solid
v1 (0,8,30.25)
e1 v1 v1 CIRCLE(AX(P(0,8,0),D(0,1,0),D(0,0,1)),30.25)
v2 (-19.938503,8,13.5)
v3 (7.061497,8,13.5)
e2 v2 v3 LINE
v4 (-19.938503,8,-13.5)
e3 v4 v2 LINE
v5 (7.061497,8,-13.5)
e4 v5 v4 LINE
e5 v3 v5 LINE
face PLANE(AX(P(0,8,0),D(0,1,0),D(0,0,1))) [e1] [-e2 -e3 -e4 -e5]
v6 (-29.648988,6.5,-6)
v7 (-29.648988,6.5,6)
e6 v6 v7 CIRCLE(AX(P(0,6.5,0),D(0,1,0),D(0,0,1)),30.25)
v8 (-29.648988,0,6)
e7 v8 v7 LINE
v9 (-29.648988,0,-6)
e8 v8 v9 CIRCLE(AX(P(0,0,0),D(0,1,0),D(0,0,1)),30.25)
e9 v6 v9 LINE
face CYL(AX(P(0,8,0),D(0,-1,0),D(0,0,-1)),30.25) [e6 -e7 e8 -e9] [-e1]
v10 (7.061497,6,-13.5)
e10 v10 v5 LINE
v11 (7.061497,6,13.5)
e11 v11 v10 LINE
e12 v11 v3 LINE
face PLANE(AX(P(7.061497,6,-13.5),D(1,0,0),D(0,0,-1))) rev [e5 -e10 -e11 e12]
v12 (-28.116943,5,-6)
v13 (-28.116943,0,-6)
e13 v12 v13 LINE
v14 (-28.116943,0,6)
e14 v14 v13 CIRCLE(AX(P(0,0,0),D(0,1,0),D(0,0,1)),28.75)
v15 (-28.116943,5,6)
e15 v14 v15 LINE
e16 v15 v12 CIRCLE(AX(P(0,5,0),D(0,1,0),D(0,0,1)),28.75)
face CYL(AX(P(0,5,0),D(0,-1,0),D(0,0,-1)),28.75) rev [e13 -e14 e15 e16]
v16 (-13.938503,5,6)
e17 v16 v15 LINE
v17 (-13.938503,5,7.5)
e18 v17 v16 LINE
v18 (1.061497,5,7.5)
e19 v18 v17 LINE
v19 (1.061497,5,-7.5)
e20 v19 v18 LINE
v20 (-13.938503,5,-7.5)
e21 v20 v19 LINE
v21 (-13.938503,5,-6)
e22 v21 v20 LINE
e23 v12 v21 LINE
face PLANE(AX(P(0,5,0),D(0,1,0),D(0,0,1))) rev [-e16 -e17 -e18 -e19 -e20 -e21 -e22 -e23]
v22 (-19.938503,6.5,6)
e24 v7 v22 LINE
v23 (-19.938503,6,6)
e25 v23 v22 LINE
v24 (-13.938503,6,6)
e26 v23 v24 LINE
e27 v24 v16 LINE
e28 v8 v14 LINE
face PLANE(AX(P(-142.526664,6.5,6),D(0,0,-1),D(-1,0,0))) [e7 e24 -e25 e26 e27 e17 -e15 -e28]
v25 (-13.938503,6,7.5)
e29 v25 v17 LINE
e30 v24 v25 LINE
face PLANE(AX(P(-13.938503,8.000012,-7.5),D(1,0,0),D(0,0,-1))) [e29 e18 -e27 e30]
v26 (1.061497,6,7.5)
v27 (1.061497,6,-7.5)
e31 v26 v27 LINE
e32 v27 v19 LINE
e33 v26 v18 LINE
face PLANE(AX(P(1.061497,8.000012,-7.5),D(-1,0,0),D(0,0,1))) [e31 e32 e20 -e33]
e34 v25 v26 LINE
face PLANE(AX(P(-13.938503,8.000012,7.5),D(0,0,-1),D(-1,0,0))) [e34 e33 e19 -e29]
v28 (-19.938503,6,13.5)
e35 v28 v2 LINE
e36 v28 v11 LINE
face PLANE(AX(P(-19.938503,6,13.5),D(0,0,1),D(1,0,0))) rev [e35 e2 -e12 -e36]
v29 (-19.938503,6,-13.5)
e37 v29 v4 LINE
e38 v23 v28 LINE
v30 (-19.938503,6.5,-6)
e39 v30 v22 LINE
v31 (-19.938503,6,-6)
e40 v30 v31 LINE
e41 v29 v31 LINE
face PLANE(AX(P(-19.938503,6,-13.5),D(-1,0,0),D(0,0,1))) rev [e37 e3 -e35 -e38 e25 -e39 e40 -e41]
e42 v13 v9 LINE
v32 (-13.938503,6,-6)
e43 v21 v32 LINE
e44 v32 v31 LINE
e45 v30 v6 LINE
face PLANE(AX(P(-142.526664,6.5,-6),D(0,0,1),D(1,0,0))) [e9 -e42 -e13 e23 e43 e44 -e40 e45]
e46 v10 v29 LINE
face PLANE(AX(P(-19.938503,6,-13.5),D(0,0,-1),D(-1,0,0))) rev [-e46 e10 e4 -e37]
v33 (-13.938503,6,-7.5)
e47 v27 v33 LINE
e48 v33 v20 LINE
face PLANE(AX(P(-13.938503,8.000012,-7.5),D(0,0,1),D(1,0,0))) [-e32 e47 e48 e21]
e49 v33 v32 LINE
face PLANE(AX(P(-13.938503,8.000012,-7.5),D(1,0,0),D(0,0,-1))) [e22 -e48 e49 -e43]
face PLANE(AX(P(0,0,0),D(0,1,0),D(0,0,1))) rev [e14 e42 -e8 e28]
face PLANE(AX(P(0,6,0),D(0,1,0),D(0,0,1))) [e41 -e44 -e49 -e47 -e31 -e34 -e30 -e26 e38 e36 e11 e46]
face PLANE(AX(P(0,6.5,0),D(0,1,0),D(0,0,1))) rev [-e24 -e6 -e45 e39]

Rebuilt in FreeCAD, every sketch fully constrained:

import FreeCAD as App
import Part
import Sketcher

V = App.Vector
Q = App.Units.Quantity


def add_polygon(sketch, points):
    """Adds a closed chain of lines whose ends are joined by coincident constraints."""
    first, n = sketch.GeometryCount, len(points)
    for a, b in zip(points, points[1:] + points[:1]):
        sketch.addGeometry(Part.LineSegment(App.Vector(*a, 0), App.Vector(*b, 0)), False)
    for i in range(n):
        sketch.addConstraint(Sketcher.Constraint("Coincident", first + i, 2, first + (i + 1) % n, 1))

doc = App.newDocument("Part")
body = doc.addObject("PartDesign::Body", "Body")

# Sketch on XZ plane
sketch1 = body.newObject("Sketcher::SketchObject", "Sketch")
sketch1.AttachmentSupport = (doc.getObject("XZ_Plane"), [""])
sketch1.MapMode = "FlatFace"
sketch1.addGeometry(Part.Circle(V(0, 0, 0), V(0, 0, 1), 30), False)
sketch1.addConstraint([
    Sketcher.Constraint("Coincident", 0, 3, -1, 1),
    Sketcher.Constraint("Diameter", 0, Q("60.5 mm")),
])
pad1 = body.newObject("PartDesign::Pad", "Pad")
pad1.Profile = sketch1
pad1.Length = 8
pad1.Reversed = True

# Sketch on XZ plane
sketch2 = body.newObject("Sketcher::SketchObject", "Sketch001")
sketch2.AttachmentSupport = (doc.getObject("XZ_Plane"), [""])
sketch2.MapMode = "FlatFace"
sketch2.addGeometry(Part.Circle(V(0, 0, 0), V(0, 0, 1), 29), False)
sketch2.addConstraint([
    Sketcher.Constraint("Coincident", 0, 3, -1, 1),
    Sketcher.Constraint("Diameter", 0, Q("57.5 mm")),
])
pocket1 = body.newObject("PartDesign::Pocket", "Pocket")
pocket1.Profile = sketch2
pocket1.Length = 5

# Sketch on XZ plane
sketch3 = body.newObject("Sketcher::SketchObject", "Sketch002")
sketch3.AttachmentSupport = (doc.getObject("XZ_Plane"), [""])
sketch3.MapMode = "FlatFace"
add_polygon(sketch3, [(-143, -6), (-143, 6), (0, 6), (0, -6)])  # lines 0-3
sketch3.addConstraint([
    Sketcher.Constraint("Vertical", 0),
    Sketcher.Constraint("Horizontal", 1),
    Sketcher.Constraint("Vertical", 2),
    Sketcher.Constraint("Horizontal", 3),
    Sketcher.Constraint("Symmetric", 1, 2, 2, 2, -1, 1),
    Sketcher.Constraint("DistanceY", 0, 1, 0, 2, Q("12 mm")),
    Sketcher.Constraint("DistanceX", 1, 1, 1, 2, Q("142.526664 mm")),
])
pocket2 = body.newObject("PartDesign::Pocket", "Pocket001")
pocket2.Profile = sketch3
pocket2.Length = 6.5

# Sketch on XZ plane
sketch4 = body.newObject("Sketcher::SketchObject", "Sketch003")
sketch4.AttachmentSupport = (doc.getObject("XZ_Plane"), [""])
sketch4.MapMode = "FlatFace"
add_polygon(sketch4, [(-14, -8), (-14, 8), (1, 8), (1, -8)])  # lines 0-3
sketch4.addConstraint([
    Sketcher.Constraint("Vertical", 0),
    Sketcher.Constraint("Horizontal", 1),
    Sketcher.Constraint("Vertical", 2),
    Sketcher.Constraint("Horizontal", 3),
    Sketcher.Constraint("Equal", 3, 0),
    Sketcher.Constraint("DistanceX", 1, 1, 1, 2, Q("15 mm")),
    Sketcher.Constraint("DistanceY", -1, 1, 0, 2, Q("7.5 mm")),
    Sketcher.Constraint("DistanceX", 0, 2, -1, 1, Q("13.938503 mm")),
])
pocket3 = body.newObject("PartDesign::Pocket", "Pocket002")
pocket3.Profile = sketch4
pocket3.Type = "ThroughAll"
pocket3.Midplane = True

# Sketch on XZ plane
sketch5 = body.newObject("Sketcher::SketchObject", "Sketch004")
sketch5.AttachmentSupport = (doc.getObject("XZ_Plane"), [""])
sketch5.MapMode = "FlatFace"
sketch5.AttachmentOffset = App.Placement(V(0, 0, -8), App.Rotation())
add_polygon(sketch5, [(-20, -14), (-20, 14), (7, 14), (7, -14)])  # lines 0-3
sketch5.addConstraint([
    Sketcher.Constraint("Vertical", 0),
    Sketcher.Constraint("Horizontal", 1),
    Sketcher.Constraint("Vertical", 2),
    Sketcher.Constraint("Horizontal", 3),
    Sketcher.Constraint("Equal", 3, 0),
    Sketcher.Constraint("DistanceX", 1, 1, 1, 2, Q("27 mm")),
    Sketcher.Constraint("DistanceY", -1, 1, 0, 2, Q("13.5 mm")),
    Sketcher.Constraint("DistanceX", 0, 2, -1, 1, Q("19.938503 mm")),
])
pocket4 = body.newObject("PartDesign::Pocket", "Pocket003")
pocket4.Profile = sketch5
pocket4.Length = 2
pocket4.Reversed = True

doc.recompute()
